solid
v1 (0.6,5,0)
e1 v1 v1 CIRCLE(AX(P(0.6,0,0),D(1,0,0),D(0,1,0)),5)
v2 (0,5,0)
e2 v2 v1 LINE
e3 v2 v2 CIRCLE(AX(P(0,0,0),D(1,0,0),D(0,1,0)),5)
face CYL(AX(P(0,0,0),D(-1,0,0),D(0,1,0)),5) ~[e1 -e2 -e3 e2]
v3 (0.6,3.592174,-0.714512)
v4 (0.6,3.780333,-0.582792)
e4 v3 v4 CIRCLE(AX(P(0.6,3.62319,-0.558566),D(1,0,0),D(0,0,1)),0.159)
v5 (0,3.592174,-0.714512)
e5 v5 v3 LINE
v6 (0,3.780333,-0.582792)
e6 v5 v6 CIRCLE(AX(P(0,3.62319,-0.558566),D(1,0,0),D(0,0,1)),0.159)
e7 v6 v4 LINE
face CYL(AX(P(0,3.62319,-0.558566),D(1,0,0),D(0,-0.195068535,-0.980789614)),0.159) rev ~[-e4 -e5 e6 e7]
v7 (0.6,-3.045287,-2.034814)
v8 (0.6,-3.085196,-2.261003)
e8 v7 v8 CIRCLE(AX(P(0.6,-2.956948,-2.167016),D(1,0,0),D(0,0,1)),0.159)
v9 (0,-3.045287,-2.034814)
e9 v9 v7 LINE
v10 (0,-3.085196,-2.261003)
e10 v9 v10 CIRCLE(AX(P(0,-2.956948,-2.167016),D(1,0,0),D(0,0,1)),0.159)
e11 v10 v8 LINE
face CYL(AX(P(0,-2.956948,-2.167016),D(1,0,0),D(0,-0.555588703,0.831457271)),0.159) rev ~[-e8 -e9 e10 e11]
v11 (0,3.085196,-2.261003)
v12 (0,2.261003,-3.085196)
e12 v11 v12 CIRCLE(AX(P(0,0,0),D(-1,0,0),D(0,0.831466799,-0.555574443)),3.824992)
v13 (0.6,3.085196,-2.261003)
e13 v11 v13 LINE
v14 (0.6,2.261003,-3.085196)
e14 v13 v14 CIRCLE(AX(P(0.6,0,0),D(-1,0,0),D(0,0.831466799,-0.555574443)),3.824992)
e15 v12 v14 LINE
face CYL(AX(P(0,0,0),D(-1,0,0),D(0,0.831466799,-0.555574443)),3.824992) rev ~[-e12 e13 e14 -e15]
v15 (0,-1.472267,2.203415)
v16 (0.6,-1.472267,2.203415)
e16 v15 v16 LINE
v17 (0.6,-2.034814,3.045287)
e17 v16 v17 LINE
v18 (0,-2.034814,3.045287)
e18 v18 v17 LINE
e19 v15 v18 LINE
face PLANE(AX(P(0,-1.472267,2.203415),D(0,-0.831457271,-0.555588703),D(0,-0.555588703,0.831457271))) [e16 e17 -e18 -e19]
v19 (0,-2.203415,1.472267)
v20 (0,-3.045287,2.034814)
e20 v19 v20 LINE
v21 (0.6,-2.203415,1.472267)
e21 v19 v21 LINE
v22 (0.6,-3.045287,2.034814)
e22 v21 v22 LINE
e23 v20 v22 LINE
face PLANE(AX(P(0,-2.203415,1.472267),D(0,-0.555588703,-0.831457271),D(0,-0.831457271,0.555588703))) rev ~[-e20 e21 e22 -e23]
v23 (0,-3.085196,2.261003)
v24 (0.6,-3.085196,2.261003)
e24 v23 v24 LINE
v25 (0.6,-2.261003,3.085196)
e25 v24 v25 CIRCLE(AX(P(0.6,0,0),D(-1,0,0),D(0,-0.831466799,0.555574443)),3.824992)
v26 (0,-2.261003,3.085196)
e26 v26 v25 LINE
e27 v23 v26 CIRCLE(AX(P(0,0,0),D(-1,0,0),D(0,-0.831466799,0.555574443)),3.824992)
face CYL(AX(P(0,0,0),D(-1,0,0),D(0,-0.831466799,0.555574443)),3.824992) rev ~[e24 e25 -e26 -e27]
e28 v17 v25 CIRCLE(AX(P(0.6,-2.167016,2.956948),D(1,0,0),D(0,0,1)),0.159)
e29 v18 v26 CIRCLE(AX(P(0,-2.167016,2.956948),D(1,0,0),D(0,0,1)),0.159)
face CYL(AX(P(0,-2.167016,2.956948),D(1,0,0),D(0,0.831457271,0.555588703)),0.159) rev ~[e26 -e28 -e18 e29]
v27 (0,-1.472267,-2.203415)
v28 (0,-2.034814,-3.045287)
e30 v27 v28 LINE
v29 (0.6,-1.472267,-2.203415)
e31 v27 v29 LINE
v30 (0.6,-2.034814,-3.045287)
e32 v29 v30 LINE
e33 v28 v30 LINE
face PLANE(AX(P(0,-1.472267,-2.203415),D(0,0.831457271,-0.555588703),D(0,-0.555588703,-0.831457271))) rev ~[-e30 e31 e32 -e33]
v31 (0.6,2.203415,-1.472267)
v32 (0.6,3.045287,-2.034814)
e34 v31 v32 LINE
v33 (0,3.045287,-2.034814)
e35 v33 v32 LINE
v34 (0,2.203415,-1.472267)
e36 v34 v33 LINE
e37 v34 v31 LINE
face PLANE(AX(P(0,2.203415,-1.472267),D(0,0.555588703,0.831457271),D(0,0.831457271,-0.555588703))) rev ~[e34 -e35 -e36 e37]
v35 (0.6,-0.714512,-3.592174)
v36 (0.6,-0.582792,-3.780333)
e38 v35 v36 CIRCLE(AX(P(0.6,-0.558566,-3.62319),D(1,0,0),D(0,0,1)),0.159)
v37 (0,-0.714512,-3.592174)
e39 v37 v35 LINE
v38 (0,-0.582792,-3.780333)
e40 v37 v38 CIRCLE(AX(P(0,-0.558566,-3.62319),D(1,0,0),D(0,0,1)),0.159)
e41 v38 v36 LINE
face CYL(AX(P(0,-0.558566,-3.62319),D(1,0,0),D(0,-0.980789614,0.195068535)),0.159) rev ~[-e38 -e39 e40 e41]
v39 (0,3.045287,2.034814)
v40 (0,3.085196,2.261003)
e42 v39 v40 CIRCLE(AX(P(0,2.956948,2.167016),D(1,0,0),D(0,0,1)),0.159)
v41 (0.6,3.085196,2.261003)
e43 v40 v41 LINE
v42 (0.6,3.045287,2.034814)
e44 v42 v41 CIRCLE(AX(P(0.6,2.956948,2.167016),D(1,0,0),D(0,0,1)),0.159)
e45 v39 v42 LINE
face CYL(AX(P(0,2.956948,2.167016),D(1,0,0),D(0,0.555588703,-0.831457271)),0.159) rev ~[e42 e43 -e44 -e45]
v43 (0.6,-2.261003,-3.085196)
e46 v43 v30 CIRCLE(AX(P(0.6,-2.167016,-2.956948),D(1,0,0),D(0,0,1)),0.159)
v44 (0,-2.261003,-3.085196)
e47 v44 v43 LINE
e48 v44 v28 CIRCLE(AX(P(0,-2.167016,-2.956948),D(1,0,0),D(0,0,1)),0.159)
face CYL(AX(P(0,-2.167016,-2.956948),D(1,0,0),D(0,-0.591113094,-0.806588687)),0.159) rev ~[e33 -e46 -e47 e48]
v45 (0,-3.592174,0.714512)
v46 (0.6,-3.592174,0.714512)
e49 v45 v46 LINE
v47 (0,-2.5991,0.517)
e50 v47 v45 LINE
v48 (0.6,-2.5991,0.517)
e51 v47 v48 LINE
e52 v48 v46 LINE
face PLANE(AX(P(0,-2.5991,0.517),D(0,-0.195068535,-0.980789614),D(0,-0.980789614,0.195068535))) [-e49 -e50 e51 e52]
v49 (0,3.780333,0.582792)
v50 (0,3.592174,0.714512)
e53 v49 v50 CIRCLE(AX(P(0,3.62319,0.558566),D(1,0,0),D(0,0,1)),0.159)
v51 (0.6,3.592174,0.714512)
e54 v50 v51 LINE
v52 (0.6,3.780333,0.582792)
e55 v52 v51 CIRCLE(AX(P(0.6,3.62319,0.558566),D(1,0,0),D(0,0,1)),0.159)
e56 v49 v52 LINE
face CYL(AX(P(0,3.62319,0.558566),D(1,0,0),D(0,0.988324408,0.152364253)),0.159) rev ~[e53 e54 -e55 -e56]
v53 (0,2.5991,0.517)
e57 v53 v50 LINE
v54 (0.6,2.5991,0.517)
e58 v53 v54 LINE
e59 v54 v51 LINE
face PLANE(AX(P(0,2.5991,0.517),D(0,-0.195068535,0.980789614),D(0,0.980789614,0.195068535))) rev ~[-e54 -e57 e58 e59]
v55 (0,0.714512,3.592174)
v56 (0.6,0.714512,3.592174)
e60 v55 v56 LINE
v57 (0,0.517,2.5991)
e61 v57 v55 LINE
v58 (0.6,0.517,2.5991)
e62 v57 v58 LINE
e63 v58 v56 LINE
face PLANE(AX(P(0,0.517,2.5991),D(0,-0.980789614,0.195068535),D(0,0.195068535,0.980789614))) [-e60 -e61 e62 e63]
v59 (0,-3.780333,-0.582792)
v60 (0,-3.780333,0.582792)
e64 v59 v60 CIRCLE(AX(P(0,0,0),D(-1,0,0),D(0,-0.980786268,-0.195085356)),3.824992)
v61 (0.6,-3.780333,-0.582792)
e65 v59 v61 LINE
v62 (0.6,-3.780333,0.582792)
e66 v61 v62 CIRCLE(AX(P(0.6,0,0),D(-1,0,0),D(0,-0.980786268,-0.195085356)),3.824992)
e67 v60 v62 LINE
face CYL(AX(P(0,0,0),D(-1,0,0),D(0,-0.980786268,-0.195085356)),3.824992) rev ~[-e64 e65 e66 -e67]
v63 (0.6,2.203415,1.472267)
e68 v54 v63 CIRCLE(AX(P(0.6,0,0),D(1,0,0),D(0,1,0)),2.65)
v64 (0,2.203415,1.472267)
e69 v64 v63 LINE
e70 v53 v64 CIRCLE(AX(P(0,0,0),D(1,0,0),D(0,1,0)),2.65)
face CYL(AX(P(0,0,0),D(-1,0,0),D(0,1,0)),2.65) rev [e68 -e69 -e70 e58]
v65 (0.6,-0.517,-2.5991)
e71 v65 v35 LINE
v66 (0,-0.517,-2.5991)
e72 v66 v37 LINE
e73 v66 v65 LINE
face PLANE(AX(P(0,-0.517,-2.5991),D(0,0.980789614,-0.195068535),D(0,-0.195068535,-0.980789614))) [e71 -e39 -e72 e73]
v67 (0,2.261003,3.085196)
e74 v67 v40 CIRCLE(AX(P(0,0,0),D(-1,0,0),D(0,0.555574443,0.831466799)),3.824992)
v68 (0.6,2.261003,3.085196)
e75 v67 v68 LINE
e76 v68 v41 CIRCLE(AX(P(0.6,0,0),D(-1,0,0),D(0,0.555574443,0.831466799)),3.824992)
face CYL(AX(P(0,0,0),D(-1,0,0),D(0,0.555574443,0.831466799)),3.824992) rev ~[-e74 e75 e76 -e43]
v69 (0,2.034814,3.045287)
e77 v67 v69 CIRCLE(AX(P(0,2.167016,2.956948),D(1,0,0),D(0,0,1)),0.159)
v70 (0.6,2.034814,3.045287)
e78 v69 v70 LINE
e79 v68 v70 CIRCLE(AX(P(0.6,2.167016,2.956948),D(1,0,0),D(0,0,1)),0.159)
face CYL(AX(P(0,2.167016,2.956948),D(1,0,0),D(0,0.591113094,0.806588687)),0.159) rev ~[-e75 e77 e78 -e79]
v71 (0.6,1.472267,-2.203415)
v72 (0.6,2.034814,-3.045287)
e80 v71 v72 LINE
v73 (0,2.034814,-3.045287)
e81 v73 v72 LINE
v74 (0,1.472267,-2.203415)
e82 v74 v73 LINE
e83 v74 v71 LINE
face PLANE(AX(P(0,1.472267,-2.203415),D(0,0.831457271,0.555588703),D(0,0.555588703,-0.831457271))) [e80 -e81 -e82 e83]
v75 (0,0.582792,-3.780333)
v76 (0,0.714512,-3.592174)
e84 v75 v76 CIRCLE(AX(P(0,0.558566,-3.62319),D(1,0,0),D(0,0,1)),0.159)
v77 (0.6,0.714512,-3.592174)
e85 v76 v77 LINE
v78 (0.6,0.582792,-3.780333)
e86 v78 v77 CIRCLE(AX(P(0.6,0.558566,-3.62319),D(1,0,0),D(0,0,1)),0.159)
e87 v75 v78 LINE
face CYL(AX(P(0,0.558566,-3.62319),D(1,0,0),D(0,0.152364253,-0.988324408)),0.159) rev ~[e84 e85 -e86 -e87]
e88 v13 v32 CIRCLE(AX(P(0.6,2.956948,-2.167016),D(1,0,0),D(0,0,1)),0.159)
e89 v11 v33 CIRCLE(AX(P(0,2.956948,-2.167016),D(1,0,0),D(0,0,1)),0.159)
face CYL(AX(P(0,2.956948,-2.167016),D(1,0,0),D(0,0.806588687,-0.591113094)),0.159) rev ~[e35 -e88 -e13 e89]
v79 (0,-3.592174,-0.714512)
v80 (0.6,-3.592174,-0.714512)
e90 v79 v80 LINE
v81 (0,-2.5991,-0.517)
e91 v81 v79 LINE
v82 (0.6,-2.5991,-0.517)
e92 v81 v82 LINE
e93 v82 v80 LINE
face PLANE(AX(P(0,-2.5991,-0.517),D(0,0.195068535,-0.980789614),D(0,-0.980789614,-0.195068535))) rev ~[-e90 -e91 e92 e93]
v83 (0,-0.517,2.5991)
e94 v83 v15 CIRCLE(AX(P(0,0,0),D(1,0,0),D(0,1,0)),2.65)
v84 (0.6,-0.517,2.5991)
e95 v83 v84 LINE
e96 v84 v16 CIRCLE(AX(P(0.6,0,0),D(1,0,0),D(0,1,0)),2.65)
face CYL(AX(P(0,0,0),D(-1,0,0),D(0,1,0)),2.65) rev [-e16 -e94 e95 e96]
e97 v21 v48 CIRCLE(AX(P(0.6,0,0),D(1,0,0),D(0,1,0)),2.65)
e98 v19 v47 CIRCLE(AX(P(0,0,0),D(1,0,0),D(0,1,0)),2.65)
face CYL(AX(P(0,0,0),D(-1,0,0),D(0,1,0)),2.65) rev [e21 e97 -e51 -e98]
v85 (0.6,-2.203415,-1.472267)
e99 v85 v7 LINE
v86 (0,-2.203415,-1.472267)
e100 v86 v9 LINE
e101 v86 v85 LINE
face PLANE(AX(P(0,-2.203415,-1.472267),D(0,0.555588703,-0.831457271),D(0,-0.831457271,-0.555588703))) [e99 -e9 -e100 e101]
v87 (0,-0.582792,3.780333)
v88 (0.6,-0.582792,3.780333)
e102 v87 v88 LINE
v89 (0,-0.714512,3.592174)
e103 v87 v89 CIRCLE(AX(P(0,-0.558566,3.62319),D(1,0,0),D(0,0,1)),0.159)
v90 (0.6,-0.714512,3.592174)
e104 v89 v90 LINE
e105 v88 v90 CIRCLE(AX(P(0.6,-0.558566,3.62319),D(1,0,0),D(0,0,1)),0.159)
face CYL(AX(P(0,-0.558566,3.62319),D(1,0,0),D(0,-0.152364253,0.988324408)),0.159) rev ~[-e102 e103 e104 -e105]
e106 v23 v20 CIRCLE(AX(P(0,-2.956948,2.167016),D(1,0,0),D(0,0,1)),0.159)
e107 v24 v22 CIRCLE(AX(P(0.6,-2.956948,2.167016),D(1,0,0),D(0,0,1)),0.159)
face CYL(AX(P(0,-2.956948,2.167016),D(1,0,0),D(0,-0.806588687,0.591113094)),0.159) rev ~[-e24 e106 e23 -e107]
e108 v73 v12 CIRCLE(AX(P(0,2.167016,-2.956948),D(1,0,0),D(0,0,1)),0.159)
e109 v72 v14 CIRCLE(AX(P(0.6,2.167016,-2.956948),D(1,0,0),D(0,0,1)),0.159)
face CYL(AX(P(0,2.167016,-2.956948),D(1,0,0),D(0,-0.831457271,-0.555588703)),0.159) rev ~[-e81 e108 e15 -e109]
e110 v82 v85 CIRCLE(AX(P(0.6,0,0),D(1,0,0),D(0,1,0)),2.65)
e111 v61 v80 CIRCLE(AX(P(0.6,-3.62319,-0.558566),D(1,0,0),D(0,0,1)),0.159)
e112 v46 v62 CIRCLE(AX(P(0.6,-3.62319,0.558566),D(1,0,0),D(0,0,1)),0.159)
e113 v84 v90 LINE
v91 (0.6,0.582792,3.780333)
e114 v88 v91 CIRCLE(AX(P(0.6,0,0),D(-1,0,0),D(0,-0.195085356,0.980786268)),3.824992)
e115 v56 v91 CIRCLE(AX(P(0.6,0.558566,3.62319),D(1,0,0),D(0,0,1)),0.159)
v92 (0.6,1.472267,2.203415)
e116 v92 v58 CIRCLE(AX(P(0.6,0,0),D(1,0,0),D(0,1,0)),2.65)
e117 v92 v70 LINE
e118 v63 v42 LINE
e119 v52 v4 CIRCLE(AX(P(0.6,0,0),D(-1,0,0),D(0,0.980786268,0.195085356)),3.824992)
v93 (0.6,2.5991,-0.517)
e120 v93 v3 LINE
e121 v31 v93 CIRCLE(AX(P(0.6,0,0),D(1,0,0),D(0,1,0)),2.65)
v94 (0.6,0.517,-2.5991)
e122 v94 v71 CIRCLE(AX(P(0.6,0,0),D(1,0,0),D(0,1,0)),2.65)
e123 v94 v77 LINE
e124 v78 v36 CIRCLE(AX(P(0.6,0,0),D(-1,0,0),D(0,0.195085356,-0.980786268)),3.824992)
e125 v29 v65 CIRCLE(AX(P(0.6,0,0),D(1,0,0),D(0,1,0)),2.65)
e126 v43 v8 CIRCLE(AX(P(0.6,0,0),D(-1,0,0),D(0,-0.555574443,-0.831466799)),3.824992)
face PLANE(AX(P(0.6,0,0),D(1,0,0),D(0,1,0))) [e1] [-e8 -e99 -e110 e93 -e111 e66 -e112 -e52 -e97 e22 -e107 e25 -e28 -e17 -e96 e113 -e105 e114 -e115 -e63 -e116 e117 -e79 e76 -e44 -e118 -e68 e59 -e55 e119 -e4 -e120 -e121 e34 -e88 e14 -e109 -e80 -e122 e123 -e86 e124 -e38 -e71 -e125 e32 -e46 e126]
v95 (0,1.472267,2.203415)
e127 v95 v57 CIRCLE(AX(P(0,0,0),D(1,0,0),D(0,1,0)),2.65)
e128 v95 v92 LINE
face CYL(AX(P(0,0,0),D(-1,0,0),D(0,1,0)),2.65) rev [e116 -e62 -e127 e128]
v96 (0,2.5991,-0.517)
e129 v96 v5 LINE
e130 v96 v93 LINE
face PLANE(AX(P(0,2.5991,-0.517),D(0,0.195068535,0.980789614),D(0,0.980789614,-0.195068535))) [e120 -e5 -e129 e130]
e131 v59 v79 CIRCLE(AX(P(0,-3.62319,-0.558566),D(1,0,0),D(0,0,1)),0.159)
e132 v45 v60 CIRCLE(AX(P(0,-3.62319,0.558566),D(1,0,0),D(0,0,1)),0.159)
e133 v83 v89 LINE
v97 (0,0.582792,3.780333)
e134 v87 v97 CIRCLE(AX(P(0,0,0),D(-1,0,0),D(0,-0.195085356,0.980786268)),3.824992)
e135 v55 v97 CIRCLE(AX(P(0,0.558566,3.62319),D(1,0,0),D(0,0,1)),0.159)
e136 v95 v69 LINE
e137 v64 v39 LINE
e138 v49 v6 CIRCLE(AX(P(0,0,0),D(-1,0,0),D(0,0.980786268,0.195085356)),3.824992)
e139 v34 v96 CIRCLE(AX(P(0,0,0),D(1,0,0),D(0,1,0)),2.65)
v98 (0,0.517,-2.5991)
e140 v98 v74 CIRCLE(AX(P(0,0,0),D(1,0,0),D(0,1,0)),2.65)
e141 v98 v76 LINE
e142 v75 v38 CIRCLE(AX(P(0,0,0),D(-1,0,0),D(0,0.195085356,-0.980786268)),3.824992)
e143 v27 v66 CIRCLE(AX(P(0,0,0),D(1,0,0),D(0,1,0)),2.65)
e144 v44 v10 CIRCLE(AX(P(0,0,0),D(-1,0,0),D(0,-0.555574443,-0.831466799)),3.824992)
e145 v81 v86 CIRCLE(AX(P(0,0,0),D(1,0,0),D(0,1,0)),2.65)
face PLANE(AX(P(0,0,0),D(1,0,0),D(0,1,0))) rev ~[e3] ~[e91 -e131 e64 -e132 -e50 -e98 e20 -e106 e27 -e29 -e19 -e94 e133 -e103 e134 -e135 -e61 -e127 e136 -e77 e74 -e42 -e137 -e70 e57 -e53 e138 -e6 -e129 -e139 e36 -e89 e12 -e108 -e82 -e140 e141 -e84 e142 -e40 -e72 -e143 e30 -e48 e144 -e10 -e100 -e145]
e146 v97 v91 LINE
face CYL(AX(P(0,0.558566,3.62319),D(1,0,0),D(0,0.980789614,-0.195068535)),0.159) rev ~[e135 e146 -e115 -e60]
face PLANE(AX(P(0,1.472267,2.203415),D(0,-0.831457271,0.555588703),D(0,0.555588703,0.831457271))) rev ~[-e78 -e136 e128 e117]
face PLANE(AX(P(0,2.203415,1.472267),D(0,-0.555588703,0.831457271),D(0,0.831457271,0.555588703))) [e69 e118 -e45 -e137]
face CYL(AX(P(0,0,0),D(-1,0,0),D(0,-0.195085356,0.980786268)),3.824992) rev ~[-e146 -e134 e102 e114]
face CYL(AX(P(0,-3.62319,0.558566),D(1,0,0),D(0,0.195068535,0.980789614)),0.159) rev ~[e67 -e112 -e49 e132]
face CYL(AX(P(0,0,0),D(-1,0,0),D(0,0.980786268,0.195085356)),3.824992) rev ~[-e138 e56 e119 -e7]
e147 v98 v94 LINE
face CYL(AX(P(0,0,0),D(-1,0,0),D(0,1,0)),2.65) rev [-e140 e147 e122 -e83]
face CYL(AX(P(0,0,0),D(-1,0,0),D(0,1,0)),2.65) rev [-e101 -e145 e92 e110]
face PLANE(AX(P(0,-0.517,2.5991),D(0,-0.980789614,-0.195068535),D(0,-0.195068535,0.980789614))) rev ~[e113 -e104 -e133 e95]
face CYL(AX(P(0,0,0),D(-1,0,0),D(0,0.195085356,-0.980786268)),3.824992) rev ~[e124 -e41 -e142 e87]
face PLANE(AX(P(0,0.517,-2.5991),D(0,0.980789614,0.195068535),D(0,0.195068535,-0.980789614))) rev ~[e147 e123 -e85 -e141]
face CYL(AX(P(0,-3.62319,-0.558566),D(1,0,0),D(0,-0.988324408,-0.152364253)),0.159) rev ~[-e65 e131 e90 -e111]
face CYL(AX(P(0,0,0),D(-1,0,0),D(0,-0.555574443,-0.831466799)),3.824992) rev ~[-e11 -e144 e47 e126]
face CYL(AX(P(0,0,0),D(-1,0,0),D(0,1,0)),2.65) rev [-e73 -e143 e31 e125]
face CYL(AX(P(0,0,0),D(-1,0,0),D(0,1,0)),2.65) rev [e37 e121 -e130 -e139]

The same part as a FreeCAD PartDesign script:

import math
import FreeCAD as App
import Part
import Sketcher
Q = App.Units.Quantity


def edges_at(feature, points):
    """Names of the edges that pass closest to the given points."""
    edges = feature.Shape.Edges
    near = lambda p: min(range(len(edges)), key=lambda i: edges[i].distToShape(Part.Vertex(*p))[0])
    return sorted({f"Edge{near(p) + 1}" for p in points})

doc = App.newDocument("Part")
params = doc.addObject("Spreadsheet::Sheet", "Params")
for row, (alias, value) in enumerate([
    ("sketch1_diameter", "10 mm"),
    ("sketch1_diameter2", "5.3 mm"),
    ("pad1_length", "0.6 mm"),
    ("sketch2_radius", "2.65 mm"),
    ("pocket1_length", "0.6 mm"),
    ("fillet_radius", "0.159 mm"),
], start=1):
    params.set(f"A{row}", alias)
    params.set(f"B{row}", "=" + value)
    params.setAlias(f"B{row}", alias)

body = doc.addObject("PartDesign::Body", "Body")

# Sketch on YZ plane
sketch1 = body.newObject("Sketcher::SketchObject", "Sketch")
sketch1.AttachmentSupport = (doc.getObject("YZ_Plane"), [""])
sketch1.MapMode = "FlatFace"
sketch1.addGeometry([
    Part.Circle(App.Vector(0, 0, 0), App.Vector(0, 0, 1), 5),
    Part.Circle(App.Vector(0, 0, 0), App.Vector(0, 0, 1), 2.65),
], False)
sketch1.addConstraint([
    Sketcher.Constraint("Coincident", 0, 3, -1, 1),
    Sketcher.Constraint("Coincident", 1, 3, -1, 1),
    Sketcher.Constraint("Diameter", 0, Q("10 mm")),
    Sketcher.Constraint("Diameter", 1, Q("5.3 mm")),
])
sketch1.setExpression("Constraints[2]", "Params.sketch1_diameter")
sketch1.setExpression("Constraints[3]", "Params.sketch1_diameter2")
pad1 = body.newObject("PartDesign::Pad", "Pad")
pad1.Profile = sketch1
pad1.setExpression("Length", "Params.pad1_length")

# Sketch on YZ plane
sketch2 = body.newObject("Sketcher::SketchObject", "Sketch001")
sketch2.AttachmentSupport = (doc.getObject("YZ_Plane"), [""])
sketch2.MapMode = "FlatFace"
sketch2.addGeometry([
    Part.ArcOfCircle(Part.Circle(App.Vector(0, 0, 0), App.Vector(0, 0, 1), 2.65), math.radians(-11.250146), math.radians(11.250146)),
    Part.LineSegment(App.Vector(2.5991, 0.517, 0), App.Vector(3.7515, 0.7462, 0)),
    Part.ArcOfCircle(Part.Circle(App.Vector(0, 0, 0), App.Vector(0, 0, 1), 3.824992), math.radians(-11.24971), math.radians(11.24971)),
    Part.LineSegment(App.Vector(3.7515, -0.7462, 0), App.Vector(2.5991, -0.517, 0)),
], False)
sketch2.addConstraint([
    Sketcher.Constraint("Coincident", 0, 2, 1, 1),
    Sketcher.Constraint("Coincident", 1, 2, 2, 2),
    Sketcher.Constraint("Coincident", 2, 1, 3, 1),
    Sketcher.Constraint("Coincident", 3, 2, 0, 1),
    Sketcher.Constraint("Coincident", 0, 3, -1, 1),
    Sketcher.Constraint("Coincident", 2, 3, -1, 1),
    Sketcher.Constraint("Vertical", 1, 2, 2, 1),
    Sketcher.Constraint("Vertical", 0, 2, 3, 2),
    Sketcher.Constraint("Radius", 2, Q("3.825 mm")),
    Sketcher.Constraint("Radius", 0, Q("2.65 mm")),
    Sketcher.Constraint("DistanceX", -1, 1, 0, 2, Q("2.599 mm")),
    Sketcher.Constraint("DistanceX", -1, 1, 1, 2, Q("3.7515 mm")),
])
sketch2.setExpression("Constraints[9]", "Params.sketch2_radius")
pocket1 = body.newObject("PartDesign::Pocket", "Pocket")
pocket1.Profile = sketch2
pocket1.setExpression("Length", "Params.pocket1_length")
pocket1.Reversed = True
doc.recompute()

fillet = body.newObject("PartDesign::Fillet", "Fillet")
fillet.Base = (pocket1, edges_at(pocket1, [(0.3, 3.752, 0.746), (0.3, 3.752, -0.746)]))
fillet.setExpression("Radius", "Params.fillet_radius")
doc.recompute()

polarpattern = body.newObject("PartDesign::PolarPattern", "PolarPattern")
polarpattern.Originals = [pocket1, fillet]
polarpattern.Axis = (doc.getObject("X_Axis"), [""])
polarpattern.Angle = 360
polarpattern.Occurrences = 8
body.Tip = polarpattern

doc.recompute()
